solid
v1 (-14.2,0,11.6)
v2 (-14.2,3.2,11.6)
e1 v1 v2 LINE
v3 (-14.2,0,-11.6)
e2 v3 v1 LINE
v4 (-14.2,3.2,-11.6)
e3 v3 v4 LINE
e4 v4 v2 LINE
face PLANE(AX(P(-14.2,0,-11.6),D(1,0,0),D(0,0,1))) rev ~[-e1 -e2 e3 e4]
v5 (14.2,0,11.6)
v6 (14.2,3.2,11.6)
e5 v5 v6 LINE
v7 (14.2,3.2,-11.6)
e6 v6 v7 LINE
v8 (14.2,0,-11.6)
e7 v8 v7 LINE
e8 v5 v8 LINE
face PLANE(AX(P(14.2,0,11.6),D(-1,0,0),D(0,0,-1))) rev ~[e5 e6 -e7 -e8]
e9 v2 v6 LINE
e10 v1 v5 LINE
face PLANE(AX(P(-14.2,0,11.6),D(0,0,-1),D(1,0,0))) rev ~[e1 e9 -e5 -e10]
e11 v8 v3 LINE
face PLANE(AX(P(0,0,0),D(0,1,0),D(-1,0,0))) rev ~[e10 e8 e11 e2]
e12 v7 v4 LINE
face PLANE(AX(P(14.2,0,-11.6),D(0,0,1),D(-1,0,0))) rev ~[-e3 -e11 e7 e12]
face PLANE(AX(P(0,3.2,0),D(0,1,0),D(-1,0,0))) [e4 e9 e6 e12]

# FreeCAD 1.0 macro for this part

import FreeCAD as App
import Part
import Sketcher

V = App.Vector
Q = App.Units.Quantity

doc = App.newDocument("Part")
body = doc.addObject("PartDesign::Body", "Body")

# Sketch on XZ plane
sketch1 = body.newObject("Sketcher::SketchObject", "Sketch")
sketch1.AttachmentSupport = (doc.getObject("XZ_Plane"), [""])
sketch1.MapMode = "FlatFace"
sketch1.addGeometry([
    Part.LineSegment(V(14, 12, 0), V(14, -12, 0)),
    Part.LineSegment(V(14, -12, 0), V(-14, -12, 0)),
    Part.LineSegment(V(-14, -12, 0), V(-14, 12, 0)),
    Part.LineSegment(V(-14, 12, 0), V(14, 12, 0)),
], False)
sketch1.addConstraint([
    Sketcher.Constraint("Coincident", 0, 2, 1, 1),
    Sketcher.Constraint("Coincident", 1, 2, 2, 1),
    Sketcher.Constraint("Coincident", 2, 2, 3, 1),
    Sketcher.Constraint("Coincident", 3, 2, 0, 1),
    Sketcher.Constraint("Vertical", 0),
    Sketcher.Constraint("Horizontal", 1),
    Sketcher.Constraint("Vertical", 2),
    Sketcher.Constraint("Horizontal", 3),
    Sketcher.Constraint("Symmetric", 0, 2, 2, 2, -1, 1),
    Sketcher.Constraint("DistanceX", 1, 2, 1, 1, Q("28.4 mm")),
    Sketcher.Constraint("DistanceY", 0, 2, 0, 1, Q("23.2 mm")),
])
pad1 = body.newObject("PartDesign::Pad", "Pad")
pad1.Profile = sketch1
pad1.Length = 3.2
pad1.Reversed = True

doc.recompute()
